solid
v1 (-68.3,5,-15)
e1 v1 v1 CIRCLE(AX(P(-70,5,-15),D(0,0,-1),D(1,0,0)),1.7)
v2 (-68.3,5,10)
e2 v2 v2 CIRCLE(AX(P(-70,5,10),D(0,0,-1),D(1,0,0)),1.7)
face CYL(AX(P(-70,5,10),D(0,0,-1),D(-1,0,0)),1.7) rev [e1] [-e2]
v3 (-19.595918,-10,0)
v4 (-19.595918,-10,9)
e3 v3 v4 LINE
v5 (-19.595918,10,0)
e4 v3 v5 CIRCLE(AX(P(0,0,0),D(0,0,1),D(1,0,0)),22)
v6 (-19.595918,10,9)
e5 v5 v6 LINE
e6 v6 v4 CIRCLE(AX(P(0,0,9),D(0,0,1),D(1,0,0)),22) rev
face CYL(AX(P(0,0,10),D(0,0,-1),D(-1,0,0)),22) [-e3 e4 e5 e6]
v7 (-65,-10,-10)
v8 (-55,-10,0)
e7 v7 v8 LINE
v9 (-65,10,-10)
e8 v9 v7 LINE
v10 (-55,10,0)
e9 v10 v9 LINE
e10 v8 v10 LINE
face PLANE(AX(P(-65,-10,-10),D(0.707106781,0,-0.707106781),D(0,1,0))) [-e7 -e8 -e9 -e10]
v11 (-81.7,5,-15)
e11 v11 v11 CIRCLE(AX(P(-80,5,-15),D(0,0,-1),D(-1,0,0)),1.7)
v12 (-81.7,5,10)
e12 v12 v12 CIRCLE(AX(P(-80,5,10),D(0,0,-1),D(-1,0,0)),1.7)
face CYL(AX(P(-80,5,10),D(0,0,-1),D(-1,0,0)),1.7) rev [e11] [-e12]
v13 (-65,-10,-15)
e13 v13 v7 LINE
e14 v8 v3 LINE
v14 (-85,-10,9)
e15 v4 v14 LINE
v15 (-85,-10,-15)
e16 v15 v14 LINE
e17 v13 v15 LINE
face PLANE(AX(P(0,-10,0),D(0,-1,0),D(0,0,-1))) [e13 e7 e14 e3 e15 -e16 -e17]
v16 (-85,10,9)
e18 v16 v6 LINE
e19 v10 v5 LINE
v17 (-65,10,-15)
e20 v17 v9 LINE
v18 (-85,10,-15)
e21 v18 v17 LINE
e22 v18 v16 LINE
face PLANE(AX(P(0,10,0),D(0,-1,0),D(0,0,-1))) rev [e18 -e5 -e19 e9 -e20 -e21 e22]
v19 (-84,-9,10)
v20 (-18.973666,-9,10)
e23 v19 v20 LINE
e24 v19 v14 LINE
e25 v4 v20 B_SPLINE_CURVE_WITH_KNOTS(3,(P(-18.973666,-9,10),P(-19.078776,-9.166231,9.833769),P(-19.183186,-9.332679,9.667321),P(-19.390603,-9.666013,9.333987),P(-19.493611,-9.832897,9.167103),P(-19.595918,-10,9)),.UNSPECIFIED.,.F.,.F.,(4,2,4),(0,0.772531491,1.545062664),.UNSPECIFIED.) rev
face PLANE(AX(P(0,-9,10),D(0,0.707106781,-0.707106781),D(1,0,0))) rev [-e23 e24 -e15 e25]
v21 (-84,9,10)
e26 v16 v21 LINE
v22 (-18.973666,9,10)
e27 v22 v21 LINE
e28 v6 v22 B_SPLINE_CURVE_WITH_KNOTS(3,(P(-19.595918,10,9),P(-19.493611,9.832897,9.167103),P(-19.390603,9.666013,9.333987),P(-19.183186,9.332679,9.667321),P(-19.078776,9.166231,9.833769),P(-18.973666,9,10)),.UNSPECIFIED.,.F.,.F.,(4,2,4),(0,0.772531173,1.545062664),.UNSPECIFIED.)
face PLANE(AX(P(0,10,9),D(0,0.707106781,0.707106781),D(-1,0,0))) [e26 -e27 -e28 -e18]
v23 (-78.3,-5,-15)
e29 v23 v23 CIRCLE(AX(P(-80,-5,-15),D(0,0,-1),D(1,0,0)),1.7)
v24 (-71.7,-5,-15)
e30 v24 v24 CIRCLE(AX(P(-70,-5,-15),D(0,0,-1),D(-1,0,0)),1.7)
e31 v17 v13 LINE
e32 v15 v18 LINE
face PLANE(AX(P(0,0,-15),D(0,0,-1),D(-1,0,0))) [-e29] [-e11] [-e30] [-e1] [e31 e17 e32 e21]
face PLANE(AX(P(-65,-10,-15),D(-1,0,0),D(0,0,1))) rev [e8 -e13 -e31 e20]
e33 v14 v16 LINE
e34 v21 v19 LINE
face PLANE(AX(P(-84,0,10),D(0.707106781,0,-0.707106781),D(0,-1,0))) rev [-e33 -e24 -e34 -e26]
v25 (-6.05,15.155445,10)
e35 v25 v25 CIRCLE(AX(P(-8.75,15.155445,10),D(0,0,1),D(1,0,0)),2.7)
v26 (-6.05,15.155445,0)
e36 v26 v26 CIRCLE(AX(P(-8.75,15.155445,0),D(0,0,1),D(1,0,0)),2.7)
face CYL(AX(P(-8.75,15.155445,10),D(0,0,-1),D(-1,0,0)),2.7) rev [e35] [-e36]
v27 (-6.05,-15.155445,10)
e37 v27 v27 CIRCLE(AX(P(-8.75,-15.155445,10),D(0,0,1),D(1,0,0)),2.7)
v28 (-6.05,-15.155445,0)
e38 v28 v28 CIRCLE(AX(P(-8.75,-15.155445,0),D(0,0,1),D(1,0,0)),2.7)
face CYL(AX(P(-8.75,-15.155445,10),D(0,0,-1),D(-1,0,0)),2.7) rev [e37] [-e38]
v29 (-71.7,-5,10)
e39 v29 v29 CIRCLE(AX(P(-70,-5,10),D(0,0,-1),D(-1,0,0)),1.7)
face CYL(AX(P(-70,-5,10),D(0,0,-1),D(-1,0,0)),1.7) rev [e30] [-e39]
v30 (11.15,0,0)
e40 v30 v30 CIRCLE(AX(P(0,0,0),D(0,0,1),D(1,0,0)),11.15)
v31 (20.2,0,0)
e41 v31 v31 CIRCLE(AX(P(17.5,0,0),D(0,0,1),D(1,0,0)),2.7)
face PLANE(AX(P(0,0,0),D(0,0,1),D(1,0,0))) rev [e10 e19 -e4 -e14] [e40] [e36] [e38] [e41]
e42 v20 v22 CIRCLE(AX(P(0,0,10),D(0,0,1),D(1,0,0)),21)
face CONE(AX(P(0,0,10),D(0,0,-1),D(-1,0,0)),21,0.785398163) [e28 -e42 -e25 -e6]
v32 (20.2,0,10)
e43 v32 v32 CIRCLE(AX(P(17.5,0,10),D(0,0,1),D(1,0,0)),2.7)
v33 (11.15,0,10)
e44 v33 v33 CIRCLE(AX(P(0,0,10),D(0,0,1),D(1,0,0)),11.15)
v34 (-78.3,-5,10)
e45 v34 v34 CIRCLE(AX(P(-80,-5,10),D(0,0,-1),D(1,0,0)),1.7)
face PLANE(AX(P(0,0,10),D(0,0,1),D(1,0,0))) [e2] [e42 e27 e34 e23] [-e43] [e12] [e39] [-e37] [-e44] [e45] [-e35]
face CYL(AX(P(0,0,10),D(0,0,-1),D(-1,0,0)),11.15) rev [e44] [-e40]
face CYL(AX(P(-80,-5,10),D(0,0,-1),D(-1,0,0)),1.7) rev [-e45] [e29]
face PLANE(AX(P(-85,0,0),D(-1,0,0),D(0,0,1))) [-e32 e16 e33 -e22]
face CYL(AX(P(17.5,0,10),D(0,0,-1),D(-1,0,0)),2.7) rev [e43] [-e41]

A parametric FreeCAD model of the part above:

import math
import FreeCAD as App
import Part
import Sketcher
Q = App.Units.Quantity


def edges_at(feature, points):
    """Names of the edges that pass closest to the given points."""
    edges = feature.Shape.Edges
    near = lambda p: min(range(len(edges)), key=lambda i: edges[i].distToShape(Part.Vertex(*p))[0])
    return sorted({f"Edge{near(p) + 1}" for p in points})

doc = App.newDocument("Part")
body = doc.addObject("PartDesign::Body", "Body")

# Sketch on XY plane
sketch1 = body.newObject("Sketcher::SketchObject", "Sketch")
sketch1.AttachmentSupport = (doc.getObject("XY_Plane"), [""])
sketch1.MapMode = "FlatFace"
sketch1.addGeometry([
    Part.Circle(App.Vector(0, 0, 0), App.Vector(0, 0, 1), 22),  # 0
    Part.Circle(App.Vector(-8.8, -15.2, 0), App.Vector(0, 0, 1), 2.7),  # 1
    Part.Circle(App.Vector(0, 0, 0), App.Vector(0, 0, 1), 11.2),  # 2
    Part.Circle(App.Vector(17.5, 0, 0), App.Vector(0, 0, 1), 2.7),  # 3
    Part.Circle(App.Vector(-8.8, 15.2, 0), App.Vector(0, 0, 1), 2.7),  # 4
], False)
sketch1.addConstraint([
    Sketcher.Constraint("Coincident", 0, 3, -1, 1),
    Sketcher.Constraint("Coincident", 2, 3, -1, 1),
    Sketcher.Constraint("Equal", 1, 3),
    Sketcher.Constraint("Equal", 3, 4),
    Sketcher.Constraint("Symmetric", 1, 3, 4, 3, -1),
    Sketcher.Constraint("PointOnObject", 3, 3, -1),
    Sketcher.Constraint("Diameter", 0, Q("44 mm")),
    Sketcher.Constraint("Diameter", 1, Q("5.4 mm")),
    Sketcher.Constraint("Diameter", 2, Q("22.3 mm")),
    Sketcher.Constraint("DistanceX", -1, 1, 3, 3, Q("17.5 mm")),
    Sketcher.Constraint("DistanceX", 1, 3, -1, 1, Q("8.75 mm")),
    Sketcher.Constraint("DistanceY", 1, 3, 4, 3, Q("30.310889 mm")),
])
pad1 = body.newObject("PartDesign::Pad", "Pad")
pad1.Profile = sketch1
pad1.Length = 10

# Sketch on XY plane
sketch2 = body.newObject("Sketcher::SketchObject", "Sketch001")
sketch2.AttachmentSupport = (doc.getObject("XY_Plane"), [""])
sketch2.MapMode = "FlatFace"
sketch2.addGeometry([
    Part.ArcOfCircle(Part.Circle(App.Vector(0, 0, 0), App.Vector(0, 0, 1), 22), math.radians(90), math.radians(270)),
    Part.LineSegment(App.Vector(0, 22, 0), App.Vector(-85, 22, 0)),
    Part.LineSegment(App.Vector(-85, 22, 0), App.Vector(-85, -22, 0)),
    Part.LineSegment(App.Vector(-85, -22, 0), App.Vector(0, -22, 0)),
], False)
sketch2.addConstraint([
    Sketcher.Constraint("Tangent", 0, 1, 1, 1),
    Sketcher.Constraint("Coincident", 1, 2, 2, 1),
    Sketcher.Constraint("Coincident", 2, 2, 3, 1),
    Sketcher.Constraint("Tangent", 3, 2, 0, 2),
    Sketcher.Constraint("Horizontal", 1),
    Sketcher.Constraint("Vertical", 2),
    Sketcher.Constraint("Horizontal", 3),
    Sketcher.Constraint("Coincident", 0, 3, -1, 1),
    Sketcher.Constraint("Radius", 0, Q("22 mm")),
    Sketcher.Constraint("DistanceX", 1, 2, 1, 1, Q("85 mm")),
])
pad2 = body.newObject("PartDesign::Pad", "Pad001")
pad2.Profile = sketch2
pad2.Length = 10

# Sketch on XY plane
sketch3 = body.newObject("Sketcher::SketchObject", "Sketch002")
sketch3.AttachmentSupport = (doc.getObject("XY_Plane"), [""])
sketch3.MapMode = "FlatFace"
sketch3.addGeometry([
    Part.LineSegment(App.Vector(-85, 22, 0), App.Vector(-85, 10, 0)),  # 0
    Part.LineSegment(App.Vector(-85, 10, 0), App.Vector(-20, 10, 0)),  # 1
    Part.ArcOfCircle(Part.Circle(App.Vector(0, 0, 0), App.Vector(0, 0, 1), 22), math.radians(90), math.radians(153)),  # 2
    Part.LineSegment(App.Vector(0, 22, 0), App.Vector(-85, 22, 0)),  # 3
    Part.LineSegment(App.Vector(-20, -10, 0), App.Vector(-85, -10, 0)),  # 4
    Part.LineSegment(App.Vector(-85, -10, 0), App.Vector(-85, -22, 0)),  # 5
    Part.LineSegment(App.Vector(-85, -22, 0), App.Vector(0, -22, 0)),  # 6
    Part.ArcOfCircle(Part.Circle(App.Vector(0, 0, 0), App.Vector(0, 0, 1), 22), math.radians(-153), math.radians(-90)),  # 7
], False)
sketch3.addConstraint([
    Sketcher.Constraint("Coincident", 0, 2, 1, 1),
    Sketcher.Constraint("Coincident", 1, 2, 2, 2),
    Sketcher.Constraint("Tangent", 2, 1, 3, 1),
    Sketcher.Constraint("Coincident", 3, 2, 0, 1),
    Sketcher.Constraint("Coincident", 4, 2, 5, 1),
    Sketcher.Constraint("Coincident", 5, 2, 6, 1),
    Sketcher.Constraint("Tangent", 6, 2, 7, 2),
    Sketcher.Constraint("Coincident", 7, 1, 4, 1),
    Sketcher.Constraint("Vertical", 0),
    Sketcher.Constraint("Horizontal", 1),
    Sketcher.Constraint("Horizontal", 3),
    Sketcher.Constraint("Horizontal", 4),
    Sketcher.Constraint("Vertical", 5),
    Sketcher.Constraint("Horizontal", 6),
    Sketcher.Constraint("Coincident", 2, 3, -1, 1),
    Sketcher.Constraint("Coincident", 7, 3, -1, 1),
    Sketcher.Constraint("Equal", 2, 7),
    Sketcher.Constraint("Symmetric", 0, 2, 4, 2, -1),
    Sketcher.Constraint("Radius", 2, Q("22 mm")),
    Sketcher.Constraint("DistanceX", 3, 2, 3, 1, Q("85 mm")),
    Sketcher.Constraint("DistanceY", 0, 2, 0, 1, Q("12 mm")),
])
pocket1 = body.newObject("PartDesign::Pocket", "Pocket")
pocket1.Profile = sketch3
pocket1.Length = 10
pocket1.Reversed = True

# Sketch on XY plane
sketch4 = body.newObject("Sketcher::SketchObject", "Sketch003")
sketch4.AttachmentSupport = (doc.getObject("XY_Plane"), [""])
sketch4.MapMode = "FlatFace"
sketch4.addGeometry([
    Part.LineSegment(App.Vector(-65, 10, 0), App.Vector(-65, -10, 0)),
    Part.LineSegment(App.Vector(-65, -10, 0), App.Vector(-85, -10, 0)),
    Part.LineSegment(App.Vector(-85, -10, 0), App.Vector(-85, 10, 0)),
    Part.LineSegment(App.Vector(-85, 10, 0), App.Vector(-65, 10, 0)),
], False)
sketch4.addConstraint([
    Sketcher.Constraint("Coincident", 0, 2, 1, 1),
    Sketcher.Constraint("Coincident", 1, 2, 2, 1),
    Sketcher.Constraint("Coincident", 2, 2, 3, 1),
    Sketcher.Constraint("Coincident", 3, 2, 0, 1),
    Sketcher.Constraint("Vertical", 0),
    Sketcher.Constraint("Horizontal", 1),
    Sketcher.Constraint("Vertical", 2),
    Sketcher.Constraint("Horizontal", 3),
    Sketcher.Constraint("Equal", 3, 0),
    Sketcher.Constraint("DistanceX", 1, 2, 1, 1, Q("20 mm")),
    Sketcher.Constraint("DistanceX", 0, 2, -1, 1, Q("65 mm")),
    Sketcher.Constraint("DistanceY", 0, 2, -1, 1, Q("10 mm")),
])
pad3 = body.newObject("PartDesign::Pad", "Pad002")
pad3.Profile = sketch4
pad3.Length = 15
pad3.Reversed = True
doc.recompute()

chamfer = body.newObject("PartDesign::Chamfer", "Chamfer")
chamfer.Base = (pad3, edges_at(pad3, [(-65, 0, 0)]))
chamfer.Size = 10
doc.recompute()

chamfer2 = body.newObject("PartDesign::Chamfer", "Chamfer001")
chamfer2.Base = (chamfer, edges_at(chamfer, [(22, 0, 10), (-52.298, 10, 10), (-52.298, -10, 10)]))
chamfer2.Size = 1

# Sketch on XY plane
sketch5 = body.newObject("Sketcher::SketchObject", "Sketch004")
sketch5.AttachmentSupport = (doc.getObject("XY_Plane"), [""])
sketch5.MapMode = "FlatFace"
sketch5.AttachmentOffset = App.Placement(App.Vector(0, 0, -15), App.Rotation())
sketch5.addGeometry([
    Part.Circle(App.Vector(-80, 5, 0), App.Vector(0, 0, 1), 1.7),
    Part.Circle(App.Vector(-70, 5, 0), App.Vector(0, 0, 1), 1.7),
    Part.Circle(App.Vector(-70, -5, 0), App.Vector(0, 0, 1), 1.7),
    Part.Circle(App.Vector(-80, -5, 0), App.Vector(0, 0, 1), 1.7),
], False)
sketch5.addConstraint([
    Sketcher.Constraint("Equal", 0, 1),
    Sketcher.Constraint("Equal", 1, 2),
    Sketcher.Constraint("Equal", 2, 3),
    Sketcher.Constraint("Symmetric", 1, 3, 2, 3, -1),
    Sketcher.Constraint("Symmetric", 0, 3, 3, 3, -1),
    Sketcher.Constraint("Horizontal", 0, 3, 1, 3),
    Sketcher.Constraint("Diameter", 0, Q("3.4 mm")),
    Sketcher.Constraint("DistanceX", 0, 3, -1, 1, Q("80 mm")),
    Sketcher.Constraint("DistanceY", -1, 1, 0, 3, Q("5 mm")),
    Sketcher.Constraint("DistanceX", 1, 3, -1, 1, Q("70 mm")),
])
pocket2 = body.newObject("PartDesign::Pocket", "Pocket001")
pocket2.Profile = sketch5
pocket2.Type = "ThroughAll"
pocket2.Reversed = True
doc.recompute()

chamfer3 = body.newObject("PartDesign::Chamfer", "Chamfer002")
chamfer3.Base = (pocket2, edges_at(pocket2, [(-85, 0, 10)]))
chamfer3.Size = 1

doc.recompute()
